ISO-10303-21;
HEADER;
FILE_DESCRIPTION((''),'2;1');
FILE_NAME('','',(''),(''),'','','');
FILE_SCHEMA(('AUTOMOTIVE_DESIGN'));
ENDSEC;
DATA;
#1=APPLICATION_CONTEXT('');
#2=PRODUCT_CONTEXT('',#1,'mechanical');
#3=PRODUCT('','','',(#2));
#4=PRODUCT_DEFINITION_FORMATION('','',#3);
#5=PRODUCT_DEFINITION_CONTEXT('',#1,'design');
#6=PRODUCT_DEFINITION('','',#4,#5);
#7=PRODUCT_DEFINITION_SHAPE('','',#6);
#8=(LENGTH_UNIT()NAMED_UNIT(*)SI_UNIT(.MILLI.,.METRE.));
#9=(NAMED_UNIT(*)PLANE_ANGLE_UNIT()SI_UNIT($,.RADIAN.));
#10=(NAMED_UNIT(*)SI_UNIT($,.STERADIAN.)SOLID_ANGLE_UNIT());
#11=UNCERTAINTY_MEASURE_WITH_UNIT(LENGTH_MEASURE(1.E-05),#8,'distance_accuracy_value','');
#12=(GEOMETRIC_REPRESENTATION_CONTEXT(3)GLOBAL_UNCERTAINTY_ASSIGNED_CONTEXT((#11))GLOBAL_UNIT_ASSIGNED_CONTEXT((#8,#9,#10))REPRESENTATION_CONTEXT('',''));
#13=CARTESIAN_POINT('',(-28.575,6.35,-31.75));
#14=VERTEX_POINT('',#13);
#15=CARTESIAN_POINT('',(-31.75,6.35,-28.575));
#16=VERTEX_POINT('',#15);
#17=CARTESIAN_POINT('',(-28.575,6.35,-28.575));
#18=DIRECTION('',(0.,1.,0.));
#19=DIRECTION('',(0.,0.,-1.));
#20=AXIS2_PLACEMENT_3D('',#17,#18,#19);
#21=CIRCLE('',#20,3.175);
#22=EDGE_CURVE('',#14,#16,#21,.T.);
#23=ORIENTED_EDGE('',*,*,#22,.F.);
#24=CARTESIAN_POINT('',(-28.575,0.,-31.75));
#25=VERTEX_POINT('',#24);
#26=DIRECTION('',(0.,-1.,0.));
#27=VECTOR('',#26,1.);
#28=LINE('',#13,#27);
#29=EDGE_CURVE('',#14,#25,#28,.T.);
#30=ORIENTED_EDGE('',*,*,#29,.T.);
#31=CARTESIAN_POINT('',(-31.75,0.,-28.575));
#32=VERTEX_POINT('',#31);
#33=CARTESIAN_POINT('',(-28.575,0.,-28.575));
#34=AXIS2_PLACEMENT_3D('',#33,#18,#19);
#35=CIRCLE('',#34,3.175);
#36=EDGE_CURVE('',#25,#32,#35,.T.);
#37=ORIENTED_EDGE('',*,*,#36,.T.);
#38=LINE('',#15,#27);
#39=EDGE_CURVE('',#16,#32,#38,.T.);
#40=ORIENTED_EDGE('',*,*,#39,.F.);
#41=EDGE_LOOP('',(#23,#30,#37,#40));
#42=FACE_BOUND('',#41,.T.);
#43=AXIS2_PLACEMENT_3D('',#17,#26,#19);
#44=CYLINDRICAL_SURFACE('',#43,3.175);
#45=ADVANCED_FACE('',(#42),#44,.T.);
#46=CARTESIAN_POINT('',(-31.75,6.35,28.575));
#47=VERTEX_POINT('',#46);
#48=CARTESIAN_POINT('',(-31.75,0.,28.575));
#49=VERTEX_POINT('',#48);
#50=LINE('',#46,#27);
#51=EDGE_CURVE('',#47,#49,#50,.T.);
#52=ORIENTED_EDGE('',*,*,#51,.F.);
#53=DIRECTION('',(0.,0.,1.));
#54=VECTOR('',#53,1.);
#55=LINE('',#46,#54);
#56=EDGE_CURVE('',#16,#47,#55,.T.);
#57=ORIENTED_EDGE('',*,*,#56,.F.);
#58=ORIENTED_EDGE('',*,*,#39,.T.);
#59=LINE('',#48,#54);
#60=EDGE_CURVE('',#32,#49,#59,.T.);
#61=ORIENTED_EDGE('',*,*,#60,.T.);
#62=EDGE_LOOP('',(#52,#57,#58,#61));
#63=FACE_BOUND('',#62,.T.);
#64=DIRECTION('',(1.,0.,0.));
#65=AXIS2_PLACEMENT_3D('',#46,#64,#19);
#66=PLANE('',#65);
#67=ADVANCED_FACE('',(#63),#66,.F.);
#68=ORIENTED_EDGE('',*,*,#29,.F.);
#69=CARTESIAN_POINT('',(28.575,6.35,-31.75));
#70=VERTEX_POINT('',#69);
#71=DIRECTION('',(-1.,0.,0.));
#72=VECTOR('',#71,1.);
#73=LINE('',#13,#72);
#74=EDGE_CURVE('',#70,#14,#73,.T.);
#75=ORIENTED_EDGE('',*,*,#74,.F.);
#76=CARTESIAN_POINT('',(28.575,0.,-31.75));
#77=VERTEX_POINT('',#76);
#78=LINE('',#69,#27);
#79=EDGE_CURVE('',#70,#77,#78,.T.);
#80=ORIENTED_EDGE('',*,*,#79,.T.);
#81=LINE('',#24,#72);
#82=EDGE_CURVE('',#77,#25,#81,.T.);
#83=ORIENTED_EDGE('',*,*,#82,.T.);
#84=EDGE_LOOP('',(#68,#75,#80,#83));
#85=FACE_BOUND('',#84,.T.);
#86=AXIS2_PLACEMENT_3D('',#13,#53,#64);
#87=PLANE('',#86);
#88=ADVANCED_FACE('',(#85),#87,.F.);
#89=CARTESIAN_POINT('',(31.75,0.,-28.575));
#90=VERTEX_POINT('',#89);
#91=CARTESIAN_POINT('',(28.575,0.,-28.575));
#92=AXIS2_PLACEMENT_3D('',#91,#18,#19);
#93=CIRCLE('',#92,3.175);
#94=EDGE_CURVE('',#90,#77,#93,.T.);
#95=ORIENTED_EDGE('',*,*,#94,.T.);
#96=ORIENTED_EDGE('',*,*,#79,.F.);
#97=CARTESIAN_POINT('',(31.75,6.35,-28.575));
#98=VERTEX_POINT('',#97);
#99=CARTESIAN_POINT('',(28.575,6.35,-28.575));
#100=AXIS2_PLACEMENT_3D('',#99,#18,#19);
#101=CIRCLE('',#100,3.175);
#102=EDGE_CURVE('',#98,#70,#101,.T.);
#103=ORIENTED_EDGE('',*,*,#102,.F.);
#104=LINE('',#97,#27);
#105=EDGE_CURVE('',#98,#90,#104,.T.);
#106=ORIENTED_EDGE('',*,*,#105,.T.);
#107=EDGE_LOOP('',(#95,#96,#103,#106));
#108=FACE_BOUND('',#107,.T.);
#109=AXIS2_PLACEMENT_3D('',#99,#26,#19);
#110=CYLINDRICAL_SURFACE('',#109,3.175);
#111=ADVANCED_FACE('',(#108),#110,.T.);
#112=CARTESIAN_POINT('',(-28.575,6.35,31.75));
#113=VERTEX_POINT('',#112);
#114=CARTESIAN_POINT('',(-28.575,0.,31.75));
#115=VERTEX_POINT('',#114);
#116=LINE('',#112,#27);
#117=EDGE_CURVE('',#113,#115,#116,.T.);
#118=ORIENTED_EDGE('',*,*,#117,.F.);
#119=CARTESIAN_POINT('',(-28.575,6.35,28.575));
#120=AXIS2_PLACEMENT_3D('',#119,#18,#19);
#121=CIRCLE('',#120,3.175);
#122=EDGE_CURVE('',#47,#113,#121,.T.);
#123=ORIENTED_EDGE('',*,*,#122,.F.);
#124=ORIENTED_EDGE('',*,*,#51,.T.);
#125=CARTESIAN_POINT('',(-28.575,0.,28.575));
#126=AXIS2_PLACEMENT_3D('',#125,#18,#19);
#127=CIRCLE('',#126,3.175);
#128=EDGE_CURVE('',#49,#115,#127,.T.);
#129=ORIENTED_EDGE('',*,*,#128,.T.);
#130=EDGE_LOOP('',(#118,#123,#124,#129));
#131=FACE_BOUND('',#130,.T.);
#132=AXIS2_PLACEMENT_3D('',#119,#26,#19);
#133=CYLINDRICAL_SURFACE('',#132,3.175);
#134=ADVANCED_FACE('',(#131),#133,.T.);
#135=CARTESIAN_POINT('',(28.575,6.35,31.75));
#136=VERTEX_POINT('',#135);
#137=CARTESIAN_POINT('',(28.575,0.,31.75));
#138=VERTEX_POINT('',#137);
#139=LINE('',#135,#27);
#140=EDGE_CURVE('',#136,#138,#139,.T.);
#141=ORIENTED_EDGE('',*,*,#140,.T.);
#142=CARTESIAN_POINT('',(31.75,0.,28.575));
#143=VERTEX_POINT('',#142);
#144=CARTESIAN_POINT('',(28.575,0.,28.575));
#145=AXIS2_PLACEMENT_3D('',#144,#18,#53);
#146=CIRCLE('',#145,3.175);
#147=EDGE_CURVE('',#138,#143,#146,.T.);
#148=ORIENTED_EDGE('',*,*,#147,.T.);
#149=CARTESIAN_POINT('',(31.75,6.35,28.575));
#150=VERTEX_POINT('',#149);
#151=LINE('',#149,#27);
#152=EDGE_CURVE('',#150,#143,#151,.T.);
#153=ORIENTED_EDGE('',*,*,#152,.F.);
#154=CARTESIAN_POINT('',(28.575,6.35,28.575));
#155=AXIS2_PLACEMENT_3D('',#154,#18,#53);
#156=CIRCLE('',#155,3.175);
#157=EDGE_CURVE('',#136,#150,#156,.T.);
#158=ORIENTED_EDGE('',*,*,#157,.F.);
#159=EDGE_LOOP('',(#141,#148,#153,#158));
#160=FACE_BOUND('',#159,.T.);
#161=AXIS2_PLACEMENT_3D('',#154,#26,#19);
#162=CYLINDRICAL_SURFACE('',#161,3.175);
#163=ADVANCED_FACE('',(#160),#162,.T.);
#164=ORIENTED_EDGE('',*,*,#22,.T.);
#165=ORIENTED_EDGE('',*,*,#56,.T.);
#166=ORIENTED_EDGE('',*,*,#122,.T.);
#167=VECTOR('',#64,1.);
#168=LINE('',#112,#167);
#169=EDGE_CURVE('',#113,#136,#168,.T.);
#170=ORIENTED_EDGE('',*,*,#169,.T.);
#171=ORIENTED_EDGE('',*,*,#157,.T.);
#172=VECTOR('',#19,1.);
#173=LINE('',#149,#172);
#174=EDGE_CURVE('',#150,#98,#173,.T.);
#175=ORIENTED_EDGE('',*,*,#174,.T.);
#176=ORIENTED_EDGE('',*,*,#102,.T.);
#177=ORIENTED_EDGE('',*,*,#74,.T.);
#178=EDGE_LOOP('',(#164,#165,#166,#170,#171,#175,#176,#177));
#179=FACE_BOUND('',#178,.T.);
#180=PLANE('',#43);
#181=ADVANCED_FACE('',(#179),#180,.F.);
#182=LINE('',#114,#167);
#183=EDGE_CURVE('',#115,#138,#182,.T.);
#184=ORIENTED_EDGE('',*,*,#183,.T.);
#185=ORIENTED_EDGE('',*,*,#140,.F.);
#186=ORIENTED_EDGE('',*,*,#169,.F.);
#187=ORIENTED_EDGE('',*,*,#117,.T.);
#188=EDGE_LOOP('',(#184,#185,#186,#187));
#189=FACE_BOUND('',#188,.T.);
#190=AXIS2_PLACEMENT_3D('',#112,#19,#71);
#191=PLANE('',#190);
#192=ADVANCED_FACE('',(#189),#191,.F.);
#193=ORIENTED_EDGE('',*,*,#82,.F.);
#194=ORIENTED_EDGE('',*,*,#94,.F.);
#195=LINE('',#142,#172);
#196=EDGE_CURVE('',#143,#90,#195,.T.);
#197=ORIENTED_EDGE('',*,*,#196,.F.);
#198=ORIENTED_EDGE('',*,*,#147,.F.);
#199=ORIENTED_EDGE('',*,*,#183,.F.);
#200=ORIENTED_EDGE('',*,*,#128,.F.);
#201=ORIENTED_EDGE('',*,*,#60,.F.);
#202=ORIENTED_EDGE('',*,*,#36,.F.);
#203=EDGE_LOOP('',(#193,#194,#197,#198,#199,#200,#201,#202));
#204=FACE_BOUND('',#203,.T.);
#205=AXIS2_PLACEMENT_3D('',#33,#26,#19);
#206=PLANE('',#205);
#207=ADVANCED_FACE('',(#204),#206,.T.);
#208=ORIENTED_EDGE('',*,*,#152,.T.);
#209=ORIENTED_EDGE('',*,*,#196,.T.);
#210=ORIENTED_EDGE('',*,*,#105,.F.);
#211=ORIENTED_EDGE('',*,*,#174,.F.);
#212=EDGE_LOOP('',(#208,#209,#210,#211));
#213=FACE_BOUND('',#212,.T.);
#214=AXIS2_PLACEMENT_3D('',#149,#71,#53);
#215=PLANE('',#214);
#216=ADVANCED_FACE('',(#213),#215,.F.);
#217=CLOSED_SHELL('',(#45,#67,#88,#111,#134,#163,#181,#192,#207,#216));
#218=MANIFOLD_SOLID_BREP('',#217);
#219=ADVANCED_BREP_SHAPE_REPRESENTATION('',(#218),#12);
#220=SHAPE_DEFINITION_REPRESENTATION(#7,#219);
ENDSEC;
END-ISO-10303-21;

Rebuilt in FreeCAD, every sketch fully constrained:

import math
import FreeCAD as App
import Part
import Sketcher
from FreeCAD import Vector
Q = App.Units.Quantity

doc = App.newDocument("Part")
body = doc.addObject("PartDesign::Body", "Body")

# Sketch on XZ plane
sketch1 = body.newObject("Sketcher::SketchObject", "Sketch")
sketch1.AttachmentSupport = (doc.getObject("XZ_Plane"), [""])
sketch1.MapMode = "FlatFace"
sketch1.addGeometry(Part.LineSegment(Vector(-28.575, 31.75, 0), Vector(28.575, 31.75, 0)), False)
sketch1.addGeometry(Part.ArcOfCircle(Part.Circle(Vector(28.575, 28.575, 0), Vector(0, 0, 1), 3.175), math.radians(0), math.radians(90)), False)
sketch1.addGeometry(Part.LineSegment(Vector(31.75, 28.575, 0), Vector(31.75, -28.575, 0)), False)
sketch1.addGeometry(Part.ArcOfCircle(Part.Circle(Vector(28.575, -28.575, 0), Vector(0, 0, 1), 3.175), math.radians(-90), math.radians(0)), False)
sketch1.addGeometry(Part.LineSegment(Vector(28.575, -31.75, 0), Vector(-28.575, -31.75, 0)), False)
sketch1.addGeometry(Part.ArcOfCircle(Part.Circle(Vector(-28.575, -28.575, 0), Vector(0, 0, 1), 3.175), math.radians(-180), math.radians(-90)), False)
sketch1.addGeometry(Part.LineSegment(Vector(-31.75, -28.575, 0), Vector(-31.75, 28.575, 0)), False)
sketch1.addGeometry(Part.ArcOfCircle(Part.Circle(Vector(-28.575, 28.575, 0), Vector(0, 0, 1), 3.175), math.radians(90), math.radians(180)), False)
sketch1.addConstraint(Sketcher.Constraint("Tangent", 0, 2, 1, 2))
sketch1.addConstraint(Sketcher.Constraint("Tangent", 1, 1, 2, 1))
sketch1.addConstraint(Sketcher.Constraint("Tangent", 2, 2, 3, 2))
sketch1.addConstraint(Sketcher.Constraint("Tangent", 3, 1, 4, 1))
sketch1.addConstraint(Sketcher.Constraint("Tangent", 4, 2, 5, 2))
sketch1.addConstraint(Sketcher.Constraint("Tangent", 5, 1, 6, 1))
sketch1.addConstraint(Sketcher.Constraint("Tangent", 6, 2, 7, 2))
sketch1.addConstraint(Sketcher.Constraint("Tangent", 7, 1, 0, 1))
sketch1.addConstraint(Sketcher.Constraint("Horizontal", 0))
sketch1.addConstraint(Sketcher.Constraint("Vertical", 2))
sketch1.addConstraint(Sketcher.Constraint("Horizontal", 4))
sketch1.addConstraint(Sketcher.Constraint("Vertical", 6))
sketch1.addConstraint(Sketcher.Constraint("Equal", 1, 3))
sketch1.addConstraint(Sketcher.Constraint("Equal", 3, 5))
sketch1.addConstraint(Sketcher.Constraint("Equal", 5, 7))
sketch1.addConstraint(Sketcher.Constraint("Symmetric", 1, 3, 5, 3, -1, 1))
sketch1.addConstraint(Sketcher.Constraint("Equal", 4, 2))
sketch1.addConstraint(Sketcher.Constraint("Radius", 1, Q("0.125 in")))
sketch1.addConstraint(Sketcher.Constraint("DistanceX", 0, 1, 0, 2, Q("2.25 in")))
pad1 = body.newObject("PartDesign::Pad", "Pad")
pad1.Profile = sketch1
pad1.Length = Q("0.25 in")
pad1.Reversed = True

doc.recompute()
